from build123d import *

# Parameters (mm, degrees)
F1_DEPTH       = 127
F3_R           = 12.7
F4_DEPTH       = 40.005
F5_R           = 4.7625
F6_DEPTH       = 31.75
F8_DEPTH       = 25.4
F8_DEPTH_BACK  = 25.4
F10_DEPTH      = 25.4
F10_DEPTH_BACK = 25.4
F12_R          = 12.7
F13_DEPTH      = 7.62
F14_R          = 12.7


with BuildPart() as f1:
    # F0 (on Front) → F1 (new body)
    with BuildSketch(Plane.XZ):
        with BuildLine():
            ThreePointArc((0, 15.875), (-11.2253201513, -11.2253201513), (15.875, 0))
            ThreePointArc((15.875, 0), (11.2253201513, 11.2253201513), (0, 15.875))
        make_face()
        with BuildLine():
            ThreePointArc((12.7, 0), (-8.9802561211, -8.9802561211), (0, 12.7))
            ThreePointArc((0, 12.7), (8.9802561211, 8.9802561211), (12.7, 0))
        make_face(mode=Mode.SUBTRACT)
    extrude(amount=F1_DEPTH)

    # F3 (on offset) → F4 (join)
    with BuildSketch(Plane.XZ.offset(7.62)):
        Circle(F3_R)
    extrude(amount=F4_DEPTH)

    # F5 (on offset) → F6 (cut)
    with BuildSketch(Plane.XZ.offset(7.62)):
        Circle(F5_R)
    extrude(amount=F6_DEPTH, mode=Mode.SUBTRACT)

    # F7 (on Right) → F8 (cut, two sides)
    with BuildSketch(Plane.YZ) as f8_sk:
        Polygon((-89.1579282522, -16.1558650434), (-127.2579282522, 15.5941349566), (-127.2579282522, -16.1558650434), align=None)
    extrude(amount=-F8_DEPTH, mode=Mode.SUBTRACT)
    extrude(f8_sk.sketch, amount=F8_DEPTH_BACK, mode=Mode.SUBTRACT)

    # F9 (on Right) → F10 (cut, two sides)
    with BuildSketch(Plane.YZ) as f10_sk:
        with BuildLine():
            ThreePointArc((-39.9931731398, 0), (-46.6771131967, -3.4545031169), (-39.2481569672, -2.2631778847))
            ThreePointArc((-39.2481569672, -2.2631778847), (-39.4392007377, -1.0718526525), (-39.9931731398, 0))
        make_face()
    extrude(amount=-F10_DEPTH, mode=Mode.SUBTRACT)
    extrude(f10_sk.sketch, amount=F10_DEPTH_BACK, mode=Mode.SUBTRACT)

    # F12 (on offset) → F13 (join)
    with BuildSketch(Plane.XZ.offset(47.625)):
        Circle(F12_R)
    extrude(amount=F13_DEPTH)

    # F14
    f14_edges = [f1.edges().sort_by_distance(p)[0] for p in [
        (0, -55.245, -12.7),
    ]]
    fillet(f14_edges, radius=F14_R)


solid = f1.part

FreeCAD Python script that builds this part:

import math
import FreeCAD as App
import Part
import Sketcher
Q = App.Units.Quantity


def edges_at(feature, points):
    """Names of the edges that pass closest to the given points."""
    edges = feature.Shape.Edges
    near = lambda p: min(range(len(edges)), key=lambda i: edges[i].distToShape(Part.Vertex(*p))[0])
    return sorted({f"Edge{near(p) + 1}" for p in points})

doc = App.newDocument("Part")
params = doc.addObject("Spreadsheet::Sheet", "Params")
for row, (alias, value) in enumerate([
    ("sketch1_radius", "0.5 in"),
    ("sketch1_radius2", "0.625 in"),
    ("pad1_length", "5 in"),
    ("sketch2_diameter", "1 in"),
    ("pad2_length", "1.575 in"),
    ("sketch3_diameter", "0.375 in"),
    ("pocket1_length", "1.25 in"),
    ("sketch4_width", "1.5 in"),
    ("sketch4_height", "1.25 in"),
    ("sketch5_radius", "0.15 in"),
    ("sketch6_diameter", "1 in"),
    ("pad3_length", "0.3 in"),
    ("fillet_radius", "0.5 in"),
], start=1):
    params.set(f"A{row}", alias)
    params.set(f"B{row}", "=" + value)
    params.setAlias(f"B{row}", alias)

body = doc.addObject("PartDesign::Body", "Body")

# Sketch on XZ plane
sketch1 = body.newObject("Sketcher::SketchObject", "Sketch")
sketch1.AttachmentSupport = (doc.getObject("XZ_Plane"), [""])
sketch1.MapMode = "FlatFace"
sketch1.addGeometry([
    Part.ArcOfCircle(Part.Circle(App.Vector(0, 0, 0), App.Vector(0, 0, 1), 15.875), math.radians(90), math.radians(360)),
    Part.ArcOfCircle(Part.Circle(App.Vector(0, 0, 0), App.Vector(0, 0, 1), 15.875), math.radians(0), math.radians(90)),
    Part.ArcOfCircle(Part.Circle(App.Vector(0, 0, 0), App.Vector(0, 0, 1), 12.7), math.radians(0), math.radians(90)),
    Part.ArcOfCircle(Part.Circle(App.Vector(0, 0, 0), App.Vector(0, 0, 1), 12.7), math.radians(90), math.radians(360)),
], False)
sketch1.addConstraint([
    Sketcher.Constraint("Tangent", 0, 1, 1, 2),
    Sketcher.Constraint("Coincident", 1, 1, 0, 2),
    Sketcher.Constraint("Tangent", 2, 1, 3, 2),
    Sketcher.Constraint("Coincident", 3, 1, 2, 2),
    Sketcher.Constraint("Coincident", 0, 3, -1, 1),
    Sketcher.Constraint("Coincident", 2, 3, -1, 1),
    Sketcher.Constraint("PointOnObject", 0, 1, -2),
    Sketcher.Constraint("PointOnObject", 1, 1, -1),
    Sketcher.Constraint("PointOnObject", 2, 1, -1),
    Sketcher.Constraint("PointOnObject", 3, 1, -2),
    Sketcher.Constraint("Radius", 2, Q("0.5 in")),
    Sketcher.Constraint("Radius", 0, Q("0.625 in")),
])
sketch1.setExpression("Constraints[10]", "Params.sketch1_radius")
sketch1.setExpression("Constraints[11]", "Params.sketch1_radius2")
pad1 = body.newObject("PartDesign::Pad", "Pad")
pad1.Profile = sketch1
pad1.setExpression("Length", "Params.pad1_length")

# Sketch on XZ plane
sketch2 = body.newObject("Sketcher::SketchObject", "Sketch001")
sketch2.AttachmentSupport = (doc.getObject("XZ_Plane"), [""])
sketch2.MapMode = "FlatFace"
sketch2.AttachmentOffset = App.Placement(App.Vector(0, 0, 0.3 * 25.4), App.Rotation())
sketch2.addGeometry(Part.Circle(App.Vector(0, 0, 0), App.Vector(0, 0, 1), 12.7), False)
sketch2.addConstraint([
    Sketcher.Constraint("Coincident", 0, 3, -1, 1),
    Sketcher.Constraint("Diameter", 0, Q("1 in")),
])
sketch2.setExpression("Constraints[1]", "Params.sketch2_diameter")
pad2 = body.newObject("PartDesign::Pad", "Pad001")
pad2.Profile = sketch2
pad2.setExpression("Length", "Params.pad2_length")

# Sketch on XZ plane
sketch3 = body.newObject("Sketcher::SketchObject", "Sketch002")
sketch3.AttachmentSupport = (doc.getObject("XZ_Plane"), [""])
sketch3.MapMode = "FlatFace"
sketch3.AttachmentOffset = App.Placement(App.Vector(0, 0, 0.3 * 25.4), App.Rotation())
sketch3.addGeometry(Part.Circle(App.Vector(0, 0, 0), App.Vector(0, 0, 1), 4.7625), False)
sketch3.addConstraint([
    Sketcher.Constraint("Coincident", 0, 3, -1, 1),
    Sketcher.Constraint("Diameter", 0, Q("0.375 in")),
])
sketch3.setExpression("Constraints[1]", "Params.sketch3_diameter")
pocket1 = body.newObject("PartDesign::Pocket", "Pocket")
pocket1.Profile = sketch3
pocket1.setExpression("Length", "Params.pocket1_length")
pocket1.Reversed = True

# Sketch on YZ plane
sketch4 = body.newObject("Sketcher::SketchObject", "Sketch003")
sketch4.AttachmentSupport = (doc.getObject("YZ_Plane"), [""])
sketch4.MapMode = "FlatFace"
sketch4.addGeometry([
    Part.LineSegment(App.Vector(-89.157928, -16.155865, 0), App.Vector(-127.257928, 15.594135, 0)),
    Part.LineSegment(App.Vector(-127.257928, 15.594135, 0), App.Vector(-127.257928, -16.155865, 0)),
    Part.LineSegment(App.Vector(-127.257928, -16.155865, 0), App.Vector(-89.157928, -16.155865, 0)),
], False)
sketch4.addConstraint([
    Sketcher.Constraint("Coincident", 0, 2, 1, 1),
    Sketcher.Constraint("Coincident", 1, 2, 2, 1),
    Sketcher.Constraint("Coincident", 2, 2, 0, 1),
    Sketcher.Constraint("Vertical", 1),
    Sketcher.Constraint("Horizontal", 2),
    Sketcher.Constraint("DistanceX", 2, 1, 2, 2, Q("1.5 in")),
    Sketcher.Constraint("DistanceY", 1, 2, 1, 1, Q("1.25 in")),
    Sketcher.Constraint("DistanceX", 0, 2, -1, 1, 127.257928),
    Sketcher.Constraint("DistanceY", -1, 1, 0, 2, 15.594135),
])
sketch4.setExpression("Constraints[5]", "Params.sketch4_width")
sketch4.setExpression("Constraints[6]", "Params.sketch4_height")
pocket2 = body.newObject("PartDesign::Pocket", "Pocket001")
pocket2.Profile = sketch4
pocket2.Type = "ThroughAll"
pocket2.Midplane = True

# Sketch on YZ plane
sketch5 = body.newObject("Sketcher::SketchObject", "Sketch004")
sketch5.AttachmentSupport = (doc.getObject("YZ_Plane"), [""])
sketch5.MapMode = "FlatFace"
sketch5.addGeometry([
    Part.ArcOfCircle(Part.Circle(App.Vector(-43.058157, -2.263178, 0), App.Vector(0, 0, 1), 3.81), math.radians(36.442085), math.radians(360)),
    Part.ArcOfCircle(Part.Circle(App.Vector(-43.058157, -2.263178, 0), App.Vector(0, 0, 1), 3.81), math.radians(0), math.radians(36.442085)),
], False)
sketch5.addConstraint([
    Sketcher.Constraint("Tangent", 0, 1, 1, 2),
    Sketcher.Constraint("Coincident", 1, 1, 0, 2),
    Sketcher.Constraint("PointOnObject", 0, 1, -1),
    Sketcher.Constraint("Horizontal", 0, 3, 1, 1),
    Sketcher.Constraint("Radius", 0, Q("0.15 in")),
    Sketcher.Constraint("DistanceX", 0, 3, -1, 1, 43.058157),
    Sketcher.Constraint("DistanceY", 0, 3, -1, 1, 2.263178),
])
sketch5.setExpression("Constraints[4]", "Params.sketch5_radius")
pocket3 = body.newObject("PartDesign::Pocket", "Pocket002")
pocket3.Profile = sketch5
pocket3.Type = "ThroughAll"
pocket3.Midplane = True

# Sketch on XZ plane
sketch6 = body.newObject("Sketcher::SketchObject", "Sketch005")
sketch6.AttachmentSupport = (doc.getObject("XZ_Plane"), [""])
sketch6.MapMode = "FlatFace"
sketch6.AttachmentOffset = App.Placement(App.Vector(0, 0, 1.875 * 25.4), App.Rotation())
sketch6.addGeometry(Part.Circle(App.Vector(0, 0, 0), App.Vector(0, 0, 1), 12.7), False)
sketch6.addConstraint([
    Sketcher.Constraint("Coincident", 0, 3, -1, 1),
    Sketcher.Constraint("Diameter", 0, Q("1 in")),
])
sketch6.setExpression("Constraints[1]", "Params.sketch6_diameter")
pad3 = body.newObject("PartDesign::Pad", "Pad002")
pad3.Profile = sketch6
pad3.setExpression("Length", "Params.pad3_length")
doc.recompute()

fillet = body.newObject("PartDesign::Fillet", "Fillet")
fillet.Base = (pad3, edges_at(pad3, [(-8.98, -55.245, -8.98)]))
fillet.setExpression("Radius", "Params.fillet_radius")

doc.recompute()
